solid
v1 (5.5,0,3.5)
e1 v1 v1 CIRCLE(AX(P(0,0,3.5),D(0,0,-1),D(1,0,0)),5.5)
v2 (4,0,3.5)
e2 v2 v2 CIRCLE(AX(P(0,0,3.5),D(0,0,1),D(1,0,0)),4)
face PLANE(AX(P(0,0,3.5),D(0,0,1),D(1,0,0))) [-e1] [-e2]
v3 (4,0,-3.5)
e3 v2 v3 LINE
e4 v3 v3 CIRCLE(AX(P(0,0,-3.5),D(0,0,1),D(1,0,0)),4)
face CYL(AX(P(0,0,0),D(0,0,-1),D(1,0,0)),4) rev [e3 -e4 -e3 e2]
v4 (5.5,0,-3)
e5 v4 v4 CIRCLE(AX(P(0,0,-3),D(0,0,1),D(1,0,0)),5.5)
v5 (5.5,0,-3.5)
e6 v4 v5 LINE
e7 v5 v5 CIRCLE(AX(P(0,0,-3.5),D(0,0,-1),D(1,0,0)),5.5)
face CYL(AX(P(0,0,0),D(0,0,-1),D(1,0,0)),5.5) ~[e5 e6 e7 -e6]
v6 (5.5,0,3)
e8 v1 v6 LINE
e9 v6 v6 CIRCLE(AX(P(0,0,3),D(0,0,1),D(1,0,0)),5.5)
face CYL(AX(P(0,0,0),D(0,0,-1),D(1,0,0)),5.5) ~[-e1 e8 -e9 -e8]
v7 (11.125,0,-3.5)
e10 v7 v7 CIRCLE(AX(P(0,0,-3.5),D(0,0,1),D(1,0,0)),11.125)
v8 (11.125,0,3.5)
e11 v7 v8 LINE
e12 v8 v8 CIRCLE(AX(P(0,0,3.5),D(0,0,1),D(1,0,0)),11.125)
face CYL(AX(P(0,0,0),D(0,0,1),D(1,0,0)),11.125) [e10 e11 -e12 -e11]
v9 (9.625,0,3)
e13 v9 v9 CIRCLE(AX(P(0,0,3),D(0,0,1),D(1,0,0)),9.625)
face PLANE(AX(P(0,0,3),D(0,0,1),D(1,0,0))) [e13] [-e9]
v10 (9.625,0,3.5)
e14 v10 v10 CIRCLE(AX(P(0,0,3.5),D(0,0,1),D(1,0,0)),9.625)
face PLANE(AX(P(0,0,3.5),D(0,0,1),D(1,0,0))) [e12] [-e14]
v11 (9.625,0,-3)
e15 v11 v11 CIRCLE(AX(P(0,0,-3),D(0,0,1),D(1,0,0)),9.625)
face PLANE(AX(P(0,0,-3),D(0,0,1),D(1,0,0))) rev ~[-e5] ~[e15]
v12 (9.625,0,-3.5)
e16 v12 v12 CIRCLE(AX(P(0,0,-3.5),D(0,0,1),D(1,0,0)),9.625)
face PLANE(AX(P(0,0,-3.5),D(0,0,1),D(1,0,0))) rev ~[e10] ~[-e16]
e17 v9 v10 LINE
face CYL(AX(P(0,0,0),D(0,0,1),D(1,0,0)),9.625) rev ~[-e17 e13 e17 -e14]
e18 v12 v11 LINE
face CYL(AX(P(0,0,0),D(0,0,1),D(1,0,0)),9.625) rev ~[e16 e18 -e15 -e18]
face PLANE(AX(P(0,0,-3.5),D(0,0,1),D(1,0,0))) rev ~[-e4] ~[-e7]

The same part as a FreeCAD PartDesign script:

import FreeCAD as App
import Part
import Sketcher

V = App.Vector
Q = App.Units.Quantity

doc = App.newDocument("Part")
body = doc.addObject("PartDesign::Body", "Body")
body.AllowCompound = True

sketch1 = body.newObject("Sketcher::SketchObject", "Sketch")
sketch1.AttachmentSupport = (doc.getObject("XY_Plane"), [""])
sketch1.MapMode = "FlatFace"
sketch1.addGeometry([
    Part.Circle(V(0, 0, 0), V(0, 0, 1), 11.1),
    Part.Circle(V(0, 0, 0), V(0, 0, 1), 4),
], False)
sketch1.addConstraint([
    Sketcher.Constraint("Coincident", 0, 3, -1, 1),
    Sketcher.Constraint("Coincident", 1, 3, -1, 1),
    Sketcher.Constraint("Diameter", 1, Q("8 mm")),
    Sketcher.Constraint("Diameter", 0, Q("22.25 mm")),
])
pad1 = body.newObject("PartDesign::Pad", "Pad")
pad1.Profile = sketch1
pad1.Length = 7
pad1.Midplane = True

sketch2 = body.newObject("Sketcher::SketchObject", "Sketch001")
sketch2.AttachmentSupport = (doc.getObject("XY_Plane"), [""])
sketch2.MapMode = "FlatFace"
sketch2.addGeometry([
    Part.Circle(V(0, 0, 0), V(0, 0, 1), 10),
    Part.Circle(V(0, 0, 0), V(0, 0, 1), 6),
], False)
sketch2.addConstraint([
    Sketcher.Constraint("Coincident", 0, 3, -1, 1),
    Sketcher.Constraint("Coincident", 1, 3, -1, 1),
    Sketcher.Constraint("Diameter", 1, Q("11 mm")),
    Sketcher.Constraint("Diameter", 0, Q("19.25 mm")),
])
pocket1 = body.newObject("PartDesign::Pocket", "Pocket")
pocket1.Profile = sketch2
pocket1.Length = 25
pocket1.Midplane = True

sketch3 = body.newObject("Sketcher::SketchObject", "Sketch002")
sketch3.AttachmentSupport = (doc.getObject("XY_Plane"), [""])
sketch3.MapMode = "FlatFace"
sketch3.addGeometry([
    Part.Circle(V(0, 0, 0), V(0, 0, 1), 10),
    Part.Circle(V(0, 0, 0), V(0, 0, 1), 6),
], False)
sketch3.addConstraint([
    Sketcher.Constraint("Coincident", 0, 3, -1, 1),
    Sketcher.Constraint("Coincident", 1, 3, -1, 1),
    Sketcher.Constraint("Diameter", 1, Q("11 mm")),
    Sketcher.Constraint("Diameter", 0, Q("19.25 mm")),
])
pad2 = body.newObject("PartDesign::Pad", "Pad001")
pad2.Profile = sketch3
pad2.Length = 6
pad2.Midplane = True

doc.recompute()
